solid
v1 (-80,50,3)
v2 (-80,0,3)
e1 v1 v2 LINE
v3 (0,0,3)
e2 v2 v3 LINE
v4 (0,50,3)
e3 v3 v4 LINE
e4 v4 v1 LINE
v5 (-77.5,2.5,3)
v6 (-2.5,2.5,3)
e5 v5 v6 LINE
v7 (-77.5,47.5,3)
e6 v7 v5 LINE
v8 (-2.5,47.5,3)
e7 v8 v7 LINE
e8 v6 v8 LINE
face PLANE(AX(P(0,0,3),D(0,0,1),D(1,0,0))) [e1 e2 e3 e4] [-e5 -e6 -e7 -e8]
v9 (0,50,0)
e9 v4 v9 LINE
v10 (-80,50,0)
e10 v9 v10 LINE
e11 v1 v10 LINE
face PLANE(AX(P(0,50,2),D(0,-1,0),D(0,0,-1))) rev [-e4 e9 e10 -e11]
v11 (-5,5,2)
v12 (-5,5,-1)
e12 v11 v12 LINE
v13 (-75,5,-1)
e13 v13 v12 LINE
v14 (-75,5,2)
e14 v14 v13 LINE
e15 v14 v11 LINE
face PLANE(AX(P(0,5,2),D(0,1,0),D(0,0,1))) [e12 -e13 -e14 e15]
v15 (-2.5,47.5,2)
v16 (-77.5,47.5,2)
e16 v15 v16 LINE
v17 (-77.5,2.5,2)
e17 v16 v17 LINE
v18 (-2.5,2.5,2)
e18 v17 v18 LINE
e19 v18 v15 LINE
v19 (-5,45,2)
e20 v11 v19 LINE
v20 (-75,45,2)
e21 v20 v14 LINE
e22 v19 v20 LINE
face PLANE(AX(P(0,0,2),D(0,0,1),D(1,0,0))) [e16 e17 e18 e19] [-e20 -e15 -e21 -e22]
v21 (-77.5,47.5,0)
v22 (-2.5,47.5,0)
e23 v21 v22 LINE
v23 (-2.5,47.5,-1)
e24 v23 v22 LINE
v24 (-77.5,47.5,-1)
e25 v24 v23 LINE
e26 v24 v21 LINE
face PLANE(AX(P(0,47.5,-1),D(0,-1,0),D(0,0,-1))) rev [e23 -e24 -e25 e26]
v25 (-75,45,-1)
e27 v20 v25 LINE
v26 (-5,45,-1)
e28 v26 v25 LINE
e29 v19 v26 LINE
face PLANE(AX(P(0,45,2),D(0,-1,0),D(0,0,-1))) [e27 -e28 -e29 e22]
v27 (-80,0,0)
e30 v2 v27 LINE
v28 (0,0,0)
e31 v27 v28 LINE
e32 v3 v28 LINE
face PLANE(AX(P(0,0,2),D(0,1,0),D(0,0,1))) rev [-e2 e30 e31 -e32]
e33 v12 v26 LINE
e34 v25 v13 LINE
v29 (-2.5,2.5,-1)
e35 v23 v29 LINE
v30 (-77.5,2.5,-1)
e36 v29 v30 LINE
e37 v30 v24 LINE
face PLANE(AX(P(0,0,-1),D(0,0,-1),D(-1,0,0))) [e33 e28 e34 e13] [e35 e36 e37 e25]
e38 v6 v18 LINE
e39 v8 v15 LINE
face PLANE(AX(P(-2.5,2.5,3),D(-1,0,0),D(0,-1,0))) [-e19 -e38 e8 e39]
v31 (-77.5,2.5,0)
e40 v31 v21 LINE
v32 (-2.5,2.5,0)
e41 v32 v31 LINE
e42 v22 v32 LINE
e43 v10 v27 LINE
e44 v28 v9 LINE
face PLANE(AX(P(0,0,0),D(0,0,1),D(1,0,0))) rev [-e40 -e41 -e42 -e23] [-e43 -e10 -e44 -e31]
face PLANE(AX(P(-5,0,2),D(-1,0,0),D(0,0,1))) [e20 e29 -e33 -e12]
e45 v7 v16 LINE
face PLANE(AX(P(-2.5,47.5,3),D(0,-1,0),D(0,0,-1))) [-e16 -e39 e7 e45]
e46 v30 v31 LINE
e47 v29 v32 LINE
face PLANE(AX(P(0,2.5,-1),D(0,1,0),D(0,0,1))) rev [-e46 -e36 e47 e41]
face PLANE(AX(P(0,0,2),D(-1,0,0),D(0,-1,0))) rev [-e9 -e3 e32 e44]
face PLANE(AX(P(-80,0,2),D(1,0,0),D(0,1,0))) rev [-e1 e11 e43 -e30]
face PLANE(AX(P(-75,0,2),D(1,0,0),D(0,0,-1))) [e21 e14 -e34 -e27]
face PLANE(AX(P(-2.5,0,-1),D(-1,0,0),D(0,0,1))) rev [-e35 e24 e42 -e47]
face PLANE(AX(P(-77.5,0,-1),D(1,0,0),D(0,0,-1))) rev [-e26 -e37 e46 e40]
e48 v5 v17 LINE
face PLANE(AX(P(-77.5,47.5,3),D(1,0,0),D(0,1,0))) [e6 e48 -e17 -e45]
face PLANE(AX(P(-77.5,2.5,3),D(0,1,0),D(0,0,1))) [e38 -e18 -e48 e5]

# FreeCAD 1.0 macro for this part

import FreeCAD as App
import Part
import Sketcher


def add_polygon(sketch, points):
    """Adds a closed chain of lines whose ends are joined by coincident constraints."""
    first, n = sketch.GeometryCount, len(points)
    for a, b in zip(points, points[1:] + points[:1]):
        sketch.addGeometry(Part.LineSegment(App.Vector(*a, 0), App.Vector(*b, 0)), False)
    for i in range(n):
        sketch.addConstraint(Sketcher.Constraint("Coincident", first + i, 2, first + (i + 1) % n, 1))

doc = App.newDocument("Part")
body = doc.addObject("PartDesign::Body", "Body")

sketch1 = body.newObject("Sketcher::SketchObject", "Sketch")
sketch1.AttachmentSupport = (doc.getObject("XY_Plane"), [""])
sketch1.MapMode = "FlatFace"
add_polygon(sketch1, [(-80, 50), (-80, 0), (0, 0), (0, 50)])
add_polygon(sketch1, [(-5, 5), (-75, 5), (-75, 45), (-5, 45)])
sketch1.addConstraint(Sketcher.Constraint("Vertical", 0))
sketch1.addConstraint(Sketcher.Constraint("Horizontal", 1))
sketch1.addConstraint(Sketcher.Constraint("Vertical", 2))
sketch1.addConstraint(Sketcher.Constraint("Horizontal", 3))
sketch1.addConstraint(Sketcher.Constraint("Horizontal", 4))
sketch1.addConstraint(Sketcher.Constraint("Vertical", 5))
sketch1.addConstraint(Sketcher.Constraint("Horizontal", 6))
sketch1.addConstraint(Sketcher.Constraint("Vertical", 7))
sketch1.addConstraint(Sketcher.Constraint("Coincident", 1, 2, -1, 1))
sketch1.addConstraint(Sketcher.Constraint("DistanceX", 1, 1, 1, 2, 80.0))
sketch1.addConstraint(Sketcher.Constraint("DistanceX", 4, 2, 4, 1, 70.0))
sketch1.addConstraint(Sketcher.Constraint("DistanceY", 0, 2, 0, 1, 50.0))
sketch1.addConstraint(Sketcher.Constraint("DistanceY", 5, 1, 5, 2, 40.0))
sketch1.addConstraint(Sketcher.Constraint("DistanceX", 4, 2, -1, 1, 75.0))
sketch1.addConstraint(Sketcher.Constraint("DistanceY", -1, 1, 4, 2, 5.0))
pad1 = body.newObject("PartDesign::Pad", "Pad")
pad1.Profile = sketch1
pad1.Length = 2

sketch2 = body.newObject("Sketcher::SketchObject", "Sketch001")
sketch2.AttachmentSupport = (doc.getObject("XY_Plane"), [""])
sketch2.MapMode = "FlatFace"
sketch2.AttachmentOffset = App.Placement(App.Vector(0, 0, 2), App.Rotation())
add_polygon(sketch2, [(-80, 50), (-80, 0), (0, 0), (0, 50)])
add_polygon(sketch2, [(-2, 2), (-78, 2), (-78, 48), (-2, 48)])
sketch2.addConstraint(Sketcher.Constraint("Vertical", 0))
sketch2.addConstraint(Sketcher.Constraint("Horizontal", 1))
sketch2.addConstraint(Sketcher.Constraint("Vertical", 2))
sketch2.addConstraint(Sketcher.Constraint("Horizontal", 3))
sketch2.addConstraint(Sketcher.Constraint("Horizontal", 4))
sketch2.addConstraint(Sketcher.Constraint("Vertical", 5))
sketch2.addConstraint(Sketcher.Constraint("Horizontal", 6))
sketch2.addConstraint(Sketcher.Constraint("Vertical", 7))
sketch2.addConstraint(Sketcher.Constraint("Coincident", 1, 2, -1, 1))
sketch2.addConstraint(Sketcher.Constraint("DistanceX", 1, 1, 1, 2, 80.0))
sketch2.addConstraint(Sketcher.Constraint("DistanceX", 4, 2, 4, 1, 75.0))
sketch2.addConstraint(Sketcher.Constraint("DistanceY", 0, 2, 0, 1, 50.0))
sketch2.addConstraint(Sketcher.Constraint("DistanceY", 5, 1, 5, 2, 45.0))
sketch2.addConstraint(Sketcher.Constraint("DistanceX", 4, 2, -1, 1, 77.5))
sketch2.addConstraint(Sketcher.Constraint("DistanceY", -1, 1, 4, 2, 2.5))
pad2 = body.newObject("PartDesign::Pad", "Pad001")
pad2.Profile = sketch2
pad2.Length = 1

sketch3 = body.newObject("Sketcher::SketchObject", "Sketch002")
sketch3.AttachmentSupport = (doc.getObject("XY_Plane"), [""])
sketch3.MapMode = "FlatFace"
add_polygon(sketch3, [(-2, 48), (-2, 2), (-78, 2), (-78, 48)])
add_polygon(sketch3, [(-75, 5), (-5, 5), (-5, 45), (-75, 45)])
sketch3.addConstraint(Sketcher.Constraint("Vertical", 0))
sketch3.addConstraint(Sketcher.Constraint("Horizontal", 1))
sketch3.addConstraint(Sketcher.Constraint("Vertical", 2))
sketch3.addConstraint(Sketcher.Constraint("Horizontal", 3))
sketch3.addConstraint(Sketcher.Constraint("Horizontal", 4))
sketch3.addConstraint(Sketcher.Constraint("Vertical", 5))
sketch3.addConstraint(Sketcher.Constraint("Horizontal", 6))
sketch3.addConstraint(Sketcher.Constraint("Vertical", 7))
sketch3.addConstraint(Sketcher.Constraint("DistanceX", 1, 2, 1, 1, 75.0))
sketch3.addConstraint(Sketcher.Constraint("DistanceX", 4, 1, 4, 2, 70.0))
sketch3.addConstraint(Sketcher.Constraint("DistanceY", 0, 2, 0, 1, 45.0))
sketch3.addConstraint(Sketcher.Constraint("DistanceY", 5, 1, 5, 2, 40.0))
sketch3.addConstraint(Sketcher.Constraint("DistanceX", 4, 2, -1, 1, 5.0))
sketch3.addConstraint(Sketcher.Constraint("DistanceY", -1, 1, 4, 2, 5.0))
sketch3.addConstraint(Sketcher.Constraint("DistanceX", 0, 2, -1, 1, 2.5))
sketch3.addConstraint(Sketcher.Constraint("DistanceY", -1, 1, 0, 2, 2.5))
pad3 = body.newObject("PartDesign::Pad", "Pad002")
pad3.Profile = sketch3
pad3.Length = 1
pad3.Reversed = True

doc.recompute()
